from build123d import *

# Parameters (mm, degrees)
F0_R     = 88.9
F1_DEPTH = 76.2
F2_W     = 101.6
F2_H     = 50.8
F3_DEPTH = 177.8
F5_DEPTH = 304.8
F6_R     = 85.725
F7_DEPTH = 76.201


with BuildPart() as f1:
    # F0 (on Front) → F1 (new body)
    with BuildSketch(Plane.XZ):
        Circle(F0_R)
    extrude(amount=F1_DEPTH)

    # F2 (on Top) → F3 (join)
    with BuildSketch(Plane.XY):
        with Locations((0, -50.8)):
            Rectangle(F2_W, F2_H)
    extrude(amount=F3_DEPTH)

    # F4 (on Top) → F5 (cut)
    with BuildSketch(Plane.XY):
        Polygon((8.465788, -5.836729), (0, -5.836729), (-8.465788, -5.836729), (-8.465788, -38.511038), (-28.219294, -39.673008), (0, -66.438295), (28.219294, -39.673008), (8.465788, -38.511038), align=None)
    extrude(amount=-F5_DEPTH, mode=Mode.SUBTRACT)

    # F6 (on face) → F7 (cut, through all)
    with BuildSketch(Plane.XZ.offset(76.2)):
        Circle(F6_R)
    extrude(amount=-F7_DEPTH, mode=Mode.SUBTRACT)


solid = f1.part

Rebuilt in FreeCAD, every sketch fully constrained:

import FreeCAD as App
import Part
import Sketcher

V = App.Vector
Q = App.Units.Quantity

doc = App.newDocument("Part")
body = doc.addObject("PartDesign::Body", "Body")

sketch1 = body.newObject("Sketcher::SketchObject", "Sketch")
sketch1.AttachmentSupport = (doc.getObject("XZ_Plane"), [""])
sketch1.MapMode = "FlatFace"
sketch1.addGeometry(Part.Circle(V(0, 0, 0), V(0, 0, 1), 89), False)
sketch1.addConstraint(Sketcher.Constraint("Coincident", 0, 3, -1, 1))
sketch1.addConstraint(Sketcher.Constraint("Diameter", 0, Q("7 in")))
pad1 = body.newObject("PartDesign::Pad", "Pad")
pad1.Profile = sketch1
pad1.Length = Q("3 in")

sketch2 = body.newObject("Sketcher::SketchObject", "Sketch001")
sketch2.AttachmentSupport = (doc.getObject("XY_Plane"), [""])
sketch2.MapMode = "FlatFace"
sketch2.addGeometry(Part.LineSegment(V(-51, -25, 0), V(-51, -76, 0)), False)
sketch2.addGeometry(Part.LineSegment(V(-51, -76, 0), V(51, -76, 0)), False)
sketch2.addGeometry(Part.LineSegment(V(51, -76, 0), V(51, -25, 0)), False)
sketch2.addGeometry(Part.LineSegment(V(51, -25, 0), V(-51, -25, 0)), False)
sketch2.addConstraint(Sketcher.Constraint("Coincident", 0, 2, 1, 1))
sketch2.addConstraint(Sketcher.Constraint("Coincident", 1, 2, 2, 1))
sketch2.addConstraint(Sketcher.Constraint("Coincident", 2, 2, 3, 1))
sketch2.addConstraint(Sketcher.Constraint("Coincident", 3, 2, 0, 1))
sketch2.addConstraint(Sketcher.Constraint("Vertical", 0))
sketch2.addConstraint(Sketcher.Constraint("Horizontal", 1))
sketch2.addConstraint(Sketcher.Constraint("Vertical", 2))
sketch2.addConstraint(Sketcher.Constraint("Horizontal", 3))
sketch2.addConstraint(Sketcher.Constraint("DistanceX", 1, 1, 1, 2, Q("4 in")))
sketch2.addConstraint(Sketcher.Constraint("DistanceY", 0, 2, 0, 1, Q("2 in")))
sketch2.addConstraint(Sketcher.Constraint("DistanceX", 0, 2, -1, 1, Q("2 in")))
sketch2.addConstraint(Sketcher.Constraint("DistanceY", 0, 2, -1, 1, Q("3 in")))
pad2 = body.newObject("PartDesign::Pad", "Pad001")
pad2.Profile = sketch2
pad2.Length = Q("7 in")

sketch3 = body.newObject("Sketcher::SketchObject", "Sketch002")
sketch3.AttachmentSupport = (doc.getObject("XY_Plane"), [""])
sketch3.MapMode = "FlatFace"
sketch3.addGeometry(Part.LineSegment(V(8, -6, 0), V(-8, -6, 0)), False)
sketch3.addGeometry(Part.LineSegment(V(-8, -6, 0), V(-8, -39, 0)), False)
sketch3.addGeometry(Part.LineSegment(V(-8, -39, 0), V(-28, -40, 0)), False)
sketch3.addGeometry(Part.LineSegment(V(-28, -40, 0), V(0, -66, 0)), False)
sketch3.addGeometry(Part.LineSegment(V(0, -66, 0), V(28, -40, 0)), False)
sketch3.addGeometry(Part.LineSegment(V(28, -40, 0), V(8, -39, 0)), False)
sketch3.addGeometry(Part.LineSegment(V(8, -39, 0), V(8, -6, 0)), False)
sketch3.addConstraint(Sketcher.Constraint("Coincident", 0, 2, 1, 1))
sketch3.addConstraint(Sketcher.Constraint("Coincident", 1, 2, 2, 1))
sketch3.addConstraint(Sketcher.Constraint("Coincident", 2, 2, 3, 1))
sketch3.addConstraint(Sketcher.Constraint("Coincident", 3, 2, 4, 1))
sketch3.addConstraint(Sketcher.Constraint("Coincident", 4, 2, 5, 1))
sketch3.addConstraint(Sketcher.Constraint("Coincident", 5, 2, 6, 1))
sketch3.addConstraint(Sketcher.Constraint("Coincident", 6, 2, 0, 1))
sketch3.addConstraint(Sketcher.Constraint("Horizontal", 0))
sketch3.addConstraint(Sketcher.Constraint("Vertical", 1))
sketch3.addConstraint(Sketcher.Constraint("Vertical", 6))
sketch3.addConstraint(Sketcher.Constraint("Symmetric", 2, 2, 4, 2, -2))
sketch3.addConstraint(Sketcher.Constraint("Symmetric", 1, 2, 5, 2, -2))
sketch3.addConstraint(Sketcher.Constraint("PointOnObject", 3, 2, -2))
sketch3.addConstraint(Sketcher.Constraint("DistanceY", 1, 2, 1, 1, 32.674309))
sketch3.addConstraint(Sketcher.Constraint("Distance", 3, 38.893562))
sketch3.addConstraint(Sketcher.Constraint("DistanceX", 0, 2, 0, 1, 16.931576))
sketch3.addConstraint(Sketcher.Constraint("DistanceY", 0, 2, -1, 1, 5.836729))
sketch3.addConstraint(Sketcher.Constraint("DistanceY", 2, 2, -1, 1, 39.673008))
sketch3.addConstraint(Sketcher.Constraint("DistanceX", 2, 2, 4, 2, 56.438588))
pocket1 = body.newObject("PartDesign::Pocket", "Pocket")
pocket1.Profile = sketch3
pocket1.Length = Q("12 in")

sketch4 = body.newObject("Sketcher::SketchObject", "Sketch003")
sketch4.AttachmentSupport = (doc.getObject("XZ_Plane"), [""])
sketch4.MapMode = "FlatFace"
sketch4.AttachmentOffset = App.Placement(V(0, 0, 3 * 25.4), App.Rotation())
sketch4.addGeometry(Part.Circle(V(0, 0, 0), V(0, 0, 1), 86), False)
sketch4.addConstraint(Sketcher.Constraint("Coincident", 0, 3, -1, 1))
sketch4.addConstraint(Sketcher.Constraint("Diameter", 0, Q("6.75 in")))
pocket2 = body.newObject("PartDesign::Pocket", "Pocket001")
pocket2.Profile = sketch4
pocket2.Type = "ThroughAll"

doc.recompute()
